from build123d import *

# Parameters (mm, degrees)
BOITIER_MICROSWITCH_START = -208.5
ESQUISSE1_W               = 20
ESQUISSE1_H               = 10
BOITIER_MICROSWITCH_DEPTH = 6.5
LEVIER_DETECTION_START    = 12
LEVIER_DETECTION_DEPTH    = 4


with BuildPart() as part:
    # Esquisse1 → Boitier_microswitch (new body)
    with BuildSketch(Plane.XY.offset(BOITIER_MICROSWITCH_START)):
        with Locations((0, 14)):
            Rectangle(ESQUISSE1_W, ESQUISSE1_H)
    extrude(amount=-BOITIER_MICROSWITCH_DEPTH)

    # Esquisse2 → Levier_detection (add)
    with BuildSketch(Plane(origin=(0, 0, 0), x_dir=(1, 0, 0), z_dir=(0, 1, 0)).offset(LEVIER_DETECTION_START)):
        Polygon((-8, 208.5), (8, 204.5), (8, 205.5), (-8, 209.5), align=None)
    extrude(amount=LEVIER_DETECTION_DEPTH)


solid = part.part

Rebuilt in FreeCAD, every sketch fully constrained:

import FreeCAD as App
import Part
import Sketcher

V = App.Vector

doc = App.newDocument("Part")
body = doc.addObject("PartDesign::Body", "Body")

# Sketch on XY plane
sketch1 = body.newObject("Sketcher::SketchObject", "Sketch")
sketch1.AttachmentSupport = (doc.getObject("XY_Plane"), [""])
sketch1.MapMode = "FlatFace"
sketch1.AttachmentOffset = App.Placement(V(0, 0, -208.5), App.Rotation())
sketch1.addGeometry(Part.LineSegment(V(-10, 19, 0), V(-10, 9, 0)), False)
sketch1.addGeometry(Part.LineSegment(V(-10, 9, 0), V(10, 9, 0)), False)
sketch1.addGeometry(Part.LineSegment(V(10, 9, 0), V(10, 19, 0)), False)
sketch1.addGeometry(Part.LineSegment(V(10, 19, 0), V(-10, 19, 0)), False)
sketch1.addConstraint(Sketcher.Constraint("Coincident", 0, 2, 1, 1))
sketch1.addConstraint(Sketcher.Constraint("Coincident", 1, 2, 2, 1))
sketch1.addConstraint(Sketcher.Constraint("Coincident", 2, 2, 3, 1))
sketch1.addConstraint(Sketcher.Constraint("Coincident", 3, 2, 0, 1))
sketch1.addConstraint(Sketcher.Constraint("Vertical", 0))
sketch1.addConstraint(Sketcher.Constraint("Horizontal", 1))
sketch1.addConstraint(Sketcher.Constraint("Vertical", 2))
sketch1.addConstraint(Sketcher.Constraint("Horizontal", 3))
sketch1.addConstraint(Sketcher.Constraint("DistanceX", 1, 1, 1, 2, 20.0))
sketch1.addConstraint(Sketcher.Constraint("DistanceY", 0, 2, 0, 1, 10.0))
sketch1.addConstraint(Sketcher.Constraint("DistanceX", 0, 2, -1, 1, 10.0))
sketch1.addConstraint(Sketcher.Constraint("DistanceY", -1, 1, 0, 2, 9.0))
pad1 = body.newObject("PartDesign::Pad", "Pad")
pad1.Profile = sketch1
pad1.Length = 6.5
pad1.Reversed = True

# Sketch on XZ plane
sketch2 = body.newObject("Sketcher::SketchObject", "Sketch001")
sketch2.AttachmentSupport = (doc.getObject("XZ_Plane"), [""])
sketch2.MapMode = "FlatFace"
sketch2.AttachmentOffset = App.Placement(V(0, 0, -12), App.Rotation())
sketch2.addGeometry(Part.LineSegment(V(-8, -208.5, 0), V(8, -204.5, 0)), False)
sketch2.addGeometry(Part.LineSegment(V(8, -204.5, 0), V(8, -205.5, 0)), False)
sketch2.addGeometry(Part.LineSegment(V(8, -205.5, 0), V(-8, -209.5, 0)), False)
sketch2.addGeometry(Part.LineSegment(V(-8, -209.5, 0), V(-8, -208.5, 0)), False)
sketch2.addConstraint(Sketcher.Constraint("Coincident", 0, 2, 1, 1))
sketch2.addConstraint(Sketcher.Constraint("Coincident", 1, 2, 2, 1))
sketch2.addConstraint(Sketcher.Constraint("Coincident", 2, 2, 3, 1))
sketch2.addConstraint(Sketcher.Constraint("Coincident", 3, 2, 0, 1))
sketch2.addConstraint(Sketcher.Constraint("Vertical", 1))
sketch2.addConstraint(Sketcher.Constraint("Vertical", 3))
sketch2.addConstraint(Sketcher.Constraint("Parallel", 0, 2))
sketch2.addConstraint(Sketcher.Constraint("DistanceY", 1, 2, 1, 1, 1.0))
sketch2.addConstraint(Sketcher.Constraint("DistanceX", -1, 1, 0, 2, 8.0))
sketch2.addConstraint(Sketcher.Constraint("DistanceX", 2, 2, -1, 1, 8.0))
sketch2.addConstraint(Sketcher.Constraint("DistanceY", 2, 2, 1, 2, 4.0))
sketch2.addConstraint(Sketcher.Constraint("DistanceY", 0, 2, -1, 1, 204.5))
pad2 = body.newObject("PartDesign::Pad", "Pad001")
pad2.Profile = sketch2
pad2.Length = 4
pad2.Reversed = True

doc.recompute()
